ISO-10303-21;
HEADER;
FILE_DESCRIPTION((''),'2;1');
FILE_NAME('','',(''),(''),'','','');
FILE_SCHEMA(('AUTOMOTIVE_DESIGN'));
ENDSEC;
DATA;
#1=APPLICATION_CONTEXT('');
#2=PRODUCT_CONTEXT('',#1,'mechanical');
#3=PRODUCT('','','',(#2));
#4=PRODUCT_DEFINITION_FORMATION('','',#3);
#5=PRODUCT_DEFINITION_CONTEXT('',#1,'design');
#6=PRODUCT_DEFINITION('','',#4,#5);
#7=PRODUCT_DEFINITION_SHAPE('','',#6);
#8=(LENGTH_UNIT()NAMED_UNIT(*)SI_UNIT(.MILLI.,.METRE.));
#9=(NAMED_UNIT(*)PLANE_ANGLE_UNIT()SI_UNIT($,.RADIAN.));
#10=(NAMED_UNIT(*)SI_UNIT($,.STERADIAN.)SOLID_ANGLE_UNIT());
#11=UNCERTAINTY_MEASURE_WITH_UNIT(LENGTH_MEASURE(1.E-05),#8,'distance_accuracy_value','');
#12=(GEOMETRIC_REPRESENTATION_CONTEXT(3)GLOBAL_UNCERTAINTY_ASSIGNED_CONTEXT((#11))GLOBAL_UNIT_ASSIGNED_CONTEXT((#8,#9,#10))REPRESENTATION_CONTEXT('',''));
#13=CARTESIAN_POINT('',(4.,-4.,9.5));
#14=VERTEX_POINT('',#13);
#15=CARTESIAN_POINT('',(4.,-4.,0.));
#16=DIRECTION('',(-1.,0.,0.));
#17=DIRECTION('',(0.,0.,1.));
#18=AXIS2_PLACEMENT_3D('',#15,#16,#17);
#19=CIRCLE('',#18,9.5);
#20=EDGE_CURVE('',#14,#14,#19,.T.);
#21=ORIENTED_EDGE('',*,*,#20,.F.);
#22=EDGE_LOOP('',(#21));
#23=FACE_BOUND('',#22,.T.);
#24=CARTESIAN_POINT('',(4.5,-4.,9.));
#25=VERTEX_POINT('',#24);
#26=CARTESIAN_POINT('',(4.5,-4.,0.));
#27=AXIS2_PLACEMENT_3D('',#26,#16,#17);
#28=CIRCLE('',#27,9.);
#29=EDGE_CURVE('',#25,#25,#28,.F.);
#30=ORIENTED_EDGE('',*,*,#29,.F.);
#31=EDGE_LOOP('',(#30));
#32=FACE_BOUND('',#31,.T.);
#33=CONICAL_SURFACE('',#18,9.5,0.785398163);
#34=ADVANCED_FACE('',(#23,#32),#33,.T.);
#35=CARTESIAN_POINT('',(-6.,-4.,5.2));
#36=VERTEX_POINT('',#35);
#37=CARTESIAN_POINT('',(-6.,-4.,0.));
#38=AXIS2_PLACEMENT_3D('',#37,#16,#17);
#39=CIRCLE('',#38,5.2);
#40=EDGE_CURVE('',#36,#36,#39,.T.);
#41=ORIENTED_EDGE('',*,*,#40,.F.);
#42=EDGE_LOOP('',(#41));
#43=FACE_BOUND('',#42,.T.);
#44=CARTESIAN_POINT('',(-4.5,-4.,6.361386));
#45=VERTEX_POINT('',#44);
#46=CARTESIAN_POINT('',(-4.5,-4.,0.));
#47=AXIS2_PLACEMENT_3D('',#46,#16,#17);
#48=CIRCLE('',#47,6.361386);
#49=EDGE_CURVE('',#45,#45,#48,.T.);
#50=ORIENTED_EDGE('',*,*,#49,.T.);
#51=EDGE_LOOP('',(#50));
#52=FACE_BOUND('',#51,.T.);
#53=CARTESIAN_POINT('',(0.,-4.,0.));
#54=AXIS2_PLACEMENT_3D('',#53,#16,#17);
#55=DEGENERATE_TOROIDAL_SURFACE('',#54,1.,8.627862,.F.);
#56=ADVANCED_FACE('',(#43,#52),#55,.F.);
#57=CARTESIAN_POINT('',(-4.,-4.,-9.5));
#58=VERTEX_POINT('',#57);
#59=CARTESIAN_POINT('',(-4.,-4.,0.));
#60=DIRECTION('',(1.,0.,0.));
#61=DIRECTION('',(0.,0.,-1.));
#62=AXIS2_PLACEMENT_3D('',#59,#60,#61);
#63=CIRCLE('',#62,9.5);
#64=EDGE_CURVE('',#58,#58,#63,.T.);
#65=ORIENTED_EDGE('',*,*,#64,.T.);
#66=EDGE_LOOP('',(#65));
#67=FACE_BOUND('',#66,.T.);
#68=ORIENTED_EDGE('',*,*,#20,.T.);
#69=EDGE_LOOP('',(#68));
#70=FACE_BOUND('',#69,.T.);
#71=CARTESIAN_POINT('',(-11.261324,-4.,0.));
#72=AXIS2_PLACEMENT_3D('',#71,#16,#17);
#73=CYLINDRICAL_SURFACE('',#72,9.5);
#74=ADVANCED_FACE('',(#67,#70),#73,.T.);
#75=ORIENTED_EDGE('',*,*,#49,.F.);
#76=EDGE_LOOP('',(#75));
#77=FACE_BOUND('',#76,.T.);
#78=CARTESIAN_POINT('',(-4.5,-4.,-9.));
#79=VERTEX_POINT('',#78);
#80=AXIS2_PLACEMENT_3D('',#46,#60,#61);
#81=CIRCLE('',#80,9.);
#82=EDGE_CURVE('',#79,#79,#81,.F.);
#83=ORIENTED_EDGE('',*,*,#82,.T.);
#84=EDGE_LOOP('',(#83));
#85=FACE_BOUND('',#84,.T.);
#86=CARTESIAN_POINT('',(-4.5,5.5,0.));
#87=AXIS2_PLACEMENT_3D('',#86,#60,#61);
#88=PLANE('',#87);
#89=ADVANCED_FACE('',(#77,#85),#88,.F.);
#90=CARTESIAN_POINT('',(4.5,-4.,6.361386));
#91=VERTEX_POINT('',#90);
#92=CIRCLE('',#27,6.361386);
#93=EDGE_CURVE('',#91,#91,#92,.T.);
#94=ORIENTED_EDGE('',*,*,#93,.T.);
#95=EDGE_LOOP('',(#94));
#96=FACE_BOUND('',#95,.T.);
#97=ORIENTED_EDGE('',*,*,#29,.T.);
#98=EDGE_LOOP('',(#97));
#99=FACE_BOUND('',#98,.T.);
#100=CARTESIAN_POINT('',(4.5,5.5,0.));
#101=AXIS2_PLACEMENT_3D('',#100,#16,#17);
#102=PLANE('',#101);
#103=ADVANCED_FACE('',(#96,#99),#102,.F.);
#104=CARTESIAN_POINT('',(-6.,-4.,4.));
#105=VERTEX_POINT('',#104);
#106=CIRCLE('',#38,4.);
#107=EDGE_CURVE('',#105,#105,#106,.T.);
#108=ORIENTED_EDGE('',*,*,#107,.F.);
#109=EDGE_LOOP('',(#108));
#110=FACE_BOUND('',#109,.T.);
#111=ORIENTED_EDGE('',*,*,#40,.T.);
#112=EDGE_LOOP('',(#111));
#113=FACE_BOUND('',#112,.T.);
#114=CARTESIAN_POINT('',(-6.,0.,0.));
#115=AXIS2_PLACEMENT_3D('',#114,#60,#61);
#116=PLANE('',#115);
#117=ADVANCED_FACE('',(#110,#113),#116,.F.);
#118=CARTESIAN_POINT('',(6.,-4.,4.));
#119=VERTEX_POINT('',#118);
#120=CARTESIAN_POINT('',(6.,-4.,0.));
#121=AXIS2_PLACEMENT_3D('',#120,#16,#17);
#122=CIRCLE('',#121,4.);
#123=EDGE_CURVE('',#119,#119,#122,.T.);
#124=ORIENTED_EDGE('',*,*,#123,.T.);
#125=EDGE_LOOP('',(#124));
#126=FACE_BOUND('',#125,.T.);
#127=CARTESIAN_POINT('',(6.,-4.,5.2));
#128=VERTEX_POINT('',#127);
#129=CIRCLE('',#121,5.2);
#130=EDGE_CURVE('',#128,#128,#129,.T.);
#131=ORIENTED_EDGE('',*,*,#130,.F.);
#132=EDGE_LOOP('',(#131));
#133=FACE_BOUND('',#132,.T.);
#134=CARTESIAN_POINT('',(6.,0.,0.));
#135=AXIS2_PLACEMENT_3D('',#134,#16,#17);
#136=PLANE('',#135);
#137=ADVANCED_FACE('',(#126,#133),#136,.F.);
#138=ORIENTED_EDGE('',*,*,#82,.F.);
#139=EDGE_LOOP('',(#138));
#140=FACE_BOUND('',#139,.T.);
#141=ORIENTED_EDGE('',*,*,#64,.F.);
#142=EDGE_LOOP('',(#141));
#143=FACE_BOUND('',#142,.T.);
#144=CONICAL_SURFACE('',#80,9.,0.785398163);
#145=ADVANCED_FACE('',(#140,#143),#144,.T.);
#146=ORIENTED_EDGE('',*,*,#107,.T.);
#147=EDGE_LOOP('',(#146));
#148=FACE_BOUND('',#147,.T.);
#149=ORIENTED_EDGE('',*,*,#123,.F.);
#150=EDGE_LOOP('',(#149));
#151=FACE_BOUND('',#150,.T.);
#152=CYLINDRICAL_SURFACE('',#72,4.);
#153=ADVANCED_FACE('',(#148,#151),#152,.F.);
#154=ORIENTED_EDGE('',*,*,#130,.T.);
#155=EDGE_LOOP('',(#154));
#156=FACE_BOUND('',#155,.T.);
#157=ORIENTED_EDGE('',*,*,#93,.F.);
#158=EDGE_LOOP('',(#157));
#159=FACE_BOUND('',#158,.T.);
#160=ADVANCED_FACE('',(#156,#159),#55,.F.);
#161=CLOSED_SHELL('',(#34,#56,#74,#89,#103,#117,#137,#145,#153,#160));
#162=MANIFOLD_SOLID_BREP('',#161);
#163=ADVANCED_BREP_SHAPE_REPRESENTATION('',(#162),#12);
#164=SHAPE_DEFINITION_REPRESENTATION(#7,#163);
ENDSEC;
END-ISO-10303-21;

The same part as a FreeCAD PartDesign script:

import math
import FreeCAD as App
import Part
import Sketcher
Q = App.Units.Quantity


def edges_at(feature, points):
    """Names of the edges that pass closest to the given points."""
    edges = feature.Shape.Edges
    near = lambda p: min(range(len(edges)), key=lambda i: edges[i].distToShape(Part.Vertex(*p))[0])
    return sorted({f"Edge{near(p) + 1}" for p in points})

doc = App.newDocument("Part")
body = doc.addObject("PartDesign::Body", "Body")

sketch1 = body.newObject("Sketcher::SketchObject", "Sketch")
sketch1.AttachmentSupport = (doc.getObject("XY_Plane"), [""])
sketch1.MapMode = "FlatFace"
sketch1.addGeometry([
    Part.LineSegment(App.Vector(-6, 0, 0), App.Vector(6, 0, 0)),
    Part.LineSegment(App.Vector(6, 0, 0), App.Vector(6, 1.2, 0)),
    Part.ArcOfCircle(Part.Circle(App.Vector(0, -5, 0), App.Vector(0, 0, 1), 8.627862), math.radians(45.939191), math.radians(58.562641)),
    Part.LineSegment(App.Vector(4.5, 2.361386, 0), App.Vector(4.5, 5.5, 0)),
    Part.LineSegment(App.Vector(4.5, 5.5, 0), App.Vector(-4.5, 5.5, 0)),
    Part.LineSegment(App.Vector(-4.5, 5.5, 0), App.Vector(-4.5, 2.361386, 0)),
    Part.ArcOfCircle(Part.Circle(App.Vector(0, -5, 0), App.Vector(0, 0, 1), 8.627862), math.radians(121.437359), math.radians(134.060809)),
    Part.LineSegment(App.Vector(-6, 1.2, 0), App.Vector(-6, 0, 0)),
], False)
sketch1.addGeometry(Part.LineSegment(App.Vector(-6, -4, 0), App.Vector(6, -4, 0)), True)
sketch1.addConstraint([
    Sketcher.Constraint("Coincident", 0, 2, 1, 1),
    Sketcher.Constraint("Coincident", 1, 2, 2, 1),
    Sketcher.Constraint("Coincident", 2, 2, 3, 1),
    Sketcher.Constraint("Coincident", 3, 2, 4, 1),
    Sketcher.Constraint("Coincident", 4, 2, 5, 1),
    Sketcher.Constraint("Coincident", 5, 2, 6, 1),
    Sketcher.Constraint("Coincident", 6, 2, 7, 1),
    Sketcher.Constraint("Coincident", 7, 2, 0, 1),
    Sketcher.Constraint("Horizontal", 0),
    Sketcher.Constraint("Vertical", 1),
    Sketcher.Constraint("Vertical", 3),
    Sketcher.Constraint("Horizontal", 4),
    Sketcher.Constraint("Vertical", 5),
    Sketcher.Constraint("Vertical", 7),
    Sketcher.Constraint("Horizontal", 8),
    Sketcher.Constraint("Coincident", 6, 3, 2, 3),
    Sketcher.Constraint("Equal", 2, 6),
    Sketcher.Constraint("Symmetric", 0, 2, 7, 2, -1, 1),
    Sketcher.Constraint("Symmetric", 2, 2, 5, 2, -2),
    Sketcher.Constraint("Vertical", 7, 2, 8, 1),
    Sketcher.Constraint("Vertical", 1, 2, 8, 2),
    Sketcher.Constraint("DistanceX", 0, 1, 0, 2, Q("12 mm")),
    Sketcher.Constraint("DistanceX", 4, 2, 4, 1, Q("9 mm")),
    Sketcher.Constraint("DistanceY", 1, 1, 1, 2, Q("1.2 mm")),
    Sketcher.Constraint("DistanceY", 2, 3, -1, 1, Q("5 mm")),
    Sketcher.Constraint("DistanceY", 8, 1, -1, 1, Q("4 mm")),
    Sketcher.Constraint("DistanceY", -1, 1, 3, 2, Q("5.5 mm")),
])
revolution = body.newObject("PartDesign::Revolution", "Revolution")
revolution.Profile = sketch1
revolution.ReferenceAxis = (sketch1, ["Axis0"])
revolution.Angle = 360
doc.recompute()

chamfer = body.newObject("PartDesign::Chamfer", "Chamfer")
chamfer.Base = (revolution, edges_at(revolution, [(-4.5, -13.5, 0), (4.5, -13.5, 0)]))
chamfer.Size = 0.5

doc.recompute()
